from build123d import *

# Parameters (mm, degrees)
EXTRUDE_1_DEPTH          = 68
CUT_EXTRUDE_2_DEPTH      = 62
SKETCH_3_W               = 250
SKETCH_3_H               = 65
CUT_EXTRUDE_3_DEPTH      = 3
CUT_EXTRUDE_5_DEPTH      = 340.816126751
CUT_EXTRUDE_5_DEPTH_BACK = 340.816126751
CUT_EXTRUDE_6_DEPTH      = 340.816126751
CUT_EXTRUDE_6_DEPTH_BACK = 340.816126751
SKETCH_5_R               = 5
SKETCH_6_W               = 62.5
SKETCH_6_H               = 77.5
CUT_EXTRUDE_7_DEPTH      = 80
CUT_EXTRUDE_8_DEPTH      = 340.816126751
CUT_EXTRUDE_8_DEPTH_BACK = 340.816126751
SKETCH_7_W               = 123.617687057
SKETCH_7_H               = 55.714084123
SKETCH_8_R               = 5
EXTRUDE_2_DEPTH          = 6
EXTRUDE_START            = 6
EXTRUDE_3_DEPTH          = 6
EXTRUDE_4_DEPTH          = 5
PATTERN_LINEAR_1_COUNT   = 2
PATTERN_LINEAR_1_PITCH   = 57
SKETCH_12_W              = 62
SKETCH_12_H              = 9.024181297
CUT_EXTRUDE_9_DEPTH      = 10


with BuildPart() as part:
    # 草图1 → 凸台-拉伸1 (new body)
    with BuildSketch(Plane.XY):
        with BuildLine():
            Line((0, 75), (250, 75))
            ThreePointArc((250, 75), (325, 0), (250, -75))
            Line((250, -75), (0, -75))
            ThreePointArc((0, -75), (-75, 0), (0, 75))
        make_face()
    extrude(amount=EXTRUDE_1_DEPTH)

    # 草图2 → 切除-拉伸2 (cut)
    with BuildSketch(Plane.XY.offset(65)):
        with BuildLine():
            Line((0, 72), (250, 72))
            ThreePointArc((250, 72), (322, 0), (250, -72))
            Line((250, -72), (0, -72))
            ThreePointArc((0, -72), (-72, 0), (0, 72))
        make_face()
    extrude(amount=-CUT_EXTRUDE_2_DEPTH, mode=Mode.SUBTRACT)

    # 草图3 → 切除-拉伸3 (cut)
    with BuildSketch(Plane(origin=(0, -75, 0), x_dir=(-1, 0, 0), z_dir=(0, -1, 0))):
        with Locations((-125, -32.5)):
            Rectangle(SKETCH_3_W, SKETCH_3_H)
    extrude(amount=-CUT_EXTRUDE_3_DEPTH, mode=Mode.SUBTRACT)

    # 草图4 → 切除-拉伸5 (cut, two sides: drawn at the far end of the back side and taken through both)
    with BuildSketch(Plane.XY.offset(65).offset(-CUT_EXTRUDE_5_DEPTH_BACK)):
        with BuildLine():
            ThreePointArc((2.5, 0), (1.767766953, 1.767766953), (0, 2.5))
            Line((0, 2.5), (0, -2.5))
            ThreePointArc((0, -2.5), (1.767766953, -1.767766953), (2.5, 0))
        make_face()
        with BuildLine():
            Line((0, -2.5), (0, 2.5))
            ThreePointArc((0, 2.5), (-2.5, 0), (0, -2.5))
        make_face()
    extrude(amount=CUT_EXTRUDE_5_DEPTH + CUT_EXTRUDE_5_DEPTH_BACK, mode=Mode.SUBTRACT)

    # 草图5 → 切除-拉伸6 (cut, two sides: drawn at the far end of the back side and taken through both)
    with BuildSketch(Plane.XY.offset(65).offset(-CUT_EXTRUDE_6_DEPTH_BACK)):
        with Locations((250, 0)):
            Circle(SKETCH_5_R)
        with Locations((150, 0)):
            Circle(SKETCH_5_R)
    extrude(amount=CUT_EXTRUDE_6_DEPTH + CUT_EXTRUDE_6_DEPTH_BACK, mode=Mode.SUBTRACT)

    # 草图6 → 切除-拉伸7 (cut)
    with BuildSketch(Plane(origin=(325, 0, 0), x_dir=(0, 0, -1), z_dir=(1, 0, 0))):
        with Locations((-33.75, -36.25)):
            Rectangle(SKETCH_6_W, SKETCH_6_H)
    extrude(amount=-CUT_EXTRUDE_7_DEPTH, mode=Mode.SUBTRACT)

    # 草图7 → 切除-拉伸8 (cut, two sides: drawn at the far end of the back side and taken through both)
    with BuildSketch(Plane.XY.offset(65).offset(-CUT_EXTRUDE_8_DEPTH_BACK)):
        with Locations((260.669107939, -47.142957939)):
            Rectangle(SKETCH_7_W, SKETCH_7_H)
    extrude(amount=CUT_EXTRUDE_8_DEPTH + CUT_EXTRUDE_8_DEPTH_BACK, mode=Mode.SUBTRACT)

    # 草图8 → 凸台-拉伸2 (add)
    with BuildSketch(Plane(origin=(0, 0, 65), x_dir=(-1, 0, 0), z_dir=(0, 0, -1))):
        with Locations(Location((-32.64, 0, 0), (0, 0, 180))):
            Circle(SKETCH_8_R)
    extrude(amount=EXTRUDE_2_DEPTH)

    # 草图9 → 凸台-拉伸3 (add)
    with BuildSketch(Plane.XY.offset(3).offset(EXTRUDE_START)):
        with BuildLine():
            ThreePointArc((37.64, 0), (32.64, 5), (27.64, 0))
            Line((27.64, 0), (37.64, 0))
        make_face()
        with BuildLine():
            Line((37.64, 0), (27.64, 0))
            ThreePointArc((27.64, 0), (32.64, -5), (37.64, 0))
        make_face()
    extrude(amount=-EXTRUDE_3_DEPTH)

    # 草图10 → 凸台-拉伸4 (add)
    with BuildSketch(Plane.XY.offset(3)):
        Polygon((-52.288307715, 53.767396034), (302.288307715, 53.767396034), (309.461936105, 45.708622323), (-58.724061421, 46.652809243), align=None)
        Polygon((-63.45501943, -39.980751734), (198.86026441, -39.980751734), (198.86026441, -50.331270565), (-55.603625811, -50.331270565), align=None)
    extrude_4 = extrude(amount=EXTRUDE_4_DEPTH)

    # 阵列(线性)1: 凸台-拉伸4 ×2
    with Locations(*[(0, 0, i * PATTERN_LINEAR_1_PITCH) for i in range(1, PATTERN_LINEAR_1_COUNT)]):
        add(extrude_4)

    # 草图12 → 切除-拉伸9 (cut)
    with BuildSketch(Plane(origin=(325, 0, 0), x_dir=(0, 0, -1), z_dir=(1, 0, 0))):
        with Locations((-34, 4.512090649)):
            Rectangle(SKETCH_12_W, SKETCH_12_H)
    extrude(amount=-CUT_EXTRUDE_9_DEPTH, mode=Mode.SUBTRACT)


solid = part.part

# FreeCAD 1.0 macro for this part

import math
import FreeCAD as App
import Part
import Sketcher
from FreeCAD import Vector
Q = App.Units.Quantity


def add_polygon(sketch, points):
    """Adds a closed chain of lines whose ends are joined by coincident constraints."""
    first, n = sketch.GeometryCount, len(points)
    for a, b in zip(points, points[1:] + points[:1]):
        sketch.addGeometry(Part.LineSegment(App.Vector(*a, 0), App.Vector(*b, 0)), False)
    for i in range(n):
        sketch.addConstraint(Sketcher.Constraint("Coincident", first + i, 2, first + (i + 1) % n, 1))

doc = App.newDocument("Part")
body = doc.addObject("PartDesign::Body", "Body")

sketch1 = doc.addObject("Sketcher::SketchObject", "Sketch")
body.addObject(sketch1)
sketch1.AttachmentSupport = (doc.XY_Plane, [""])
sketch1.MapMode = "FlatFace"
sketch1.addGeometry(Part.LineSegment(Vector(250, 75, 0), Vector(0, 75, 0)), False)
sketch1.addGeometry(Part.ArcOfCircle(Part.Circle(Vector(0, 0, 0), Vector(0, 0, 1), 75), math.radians(90), math.radians(270)), False)
sketch1.addGeometry(Part.LineSegment(Vector(0, -75, 0), Vector(250, -75, 0)), False)
sketch1.addGeometry(Part.ArcOfCircle(Part.Circle(Vector(250, 0, 0), Vector(0, 0, 1), 75), math.radians(-90), math.radians(90)), False)
sketch1.addConstraint(Sketcher.Constraint("Tangent", 0, 2, 1, 1))
sketch1.addConstraint(Sketcher.Constraint("Tangent", 1, 2, 2, 1))
sketch1.addConstraint(Sketcher.Constraint("Tangent", 2, 2, 3, 1))
sketch1.addConstraint(Sketcher.Constraint("Tangent", 3, 2, 0, 1))
sketch1.addConstraint(Sketcher.Constraint("Horizontal", 0))
sketch1.addConstraint(Sketcher.Constraint("Horizontal", 2))
sketch1.addConstraint(Sketcher.Constraint("Coincident", 1, 3, -1, 1))
sketch1.addConstraint(Sketcher.Constraint("Radius", 1, Q("75 mm")))
sketch1.addConstraint(Sketcher.Constraint("DistanceX", 0, 2, 0, 1, Q("250 mm")))
pad1 = doc.addObject("PartDesign::Pad", "Pad")
body.addObject(pad1)
pad1.Profile = sketch1
pad1.Length = 68

sketch2 = doc.addObject("Sketcher::SketchObject", "Sketch001")
body.addObject(sketch2)
sketch2.AttachmentSupport = (doc.XY_Plane, [""])
sketch2.MapMode = "FlatFace"
sketch2.AttachmentOffset = App.Placement(Vector(0, 0, 65), App.Rotation())
sketch2.addGeometry(Part.LineSegment(Vector(250, 72, 0), Vector(0, 72, 0)), False)
sketch2.addGeometry(Part.ArcOfCircle(Part.Circle(Vector(0, 0, 0), Vector(0, 0, 1), 72), math.radians(90), math.radians(270)), False)
sketch2.addGeometry(Part.LineSegment(Vector(0, -72, 0), Vector(250, -72, 0)), False)
sketch2.addGeometry(Part.ArcOfCircle(Part.Circle(Vector(250, 0, 0), Vector(0, 0, 1), 72), math.radians(-90), math.radians(90)), False)
sketch2.addConstraint(Sketcher.Constraint("Tangent", 0, 2, 1, 1))
sketch2.addConstraint(Sketcher.Constraint("Tangent", 1, 2, 2, 1))
sketch2.addConstraint(Sketcher.Constraint("Tangent", 2, 2, 3, 1))
sketch2.addConstraint(Sketcher.Constraint("Tangent", 3, 2, 0, 1))
sketch2.addConstraint(Sketcher.Constraint("Horizontal", 0))
sketch2.addConstraint(Sketcher.Constraint("Horizontal", 2))
sketch2.addConstraint(Sketcher.Constraint("Coincident", 1, 3, -1, 1))
sketch2.addConstraint(Sketcher.Constraint("Radius", 1, Q("72 mm")))
sketch2.addConstraint(Sketcher.Constraint("DistanceX", 0, 2, 0, 1, Q("250 mm")))
pocket1 = doc.addObject("PartDesign::Pocket", "Pocket")
body.addObject(pocket1)
pocket1.Profile = sketch2
pocket1.Length = 62

sketch3 = doc.addObject("Sketcher::SketchObject", "Sketch002")
body.addObject(sketch3)
sketch3.AttachmentSupport = (doc.XZ_Plane, [""])
sketch3.MapMode = "FlatFace"
sketch3.AttachmentOffset = App.Placement(Vector(0, 0, 75), App.Rotation())
add_polygon(sketch3, [(250, 0), (250, 65), (0, 65), (0, 0)])
sketch3.addConstraint(Sketcher.Constraint("Vertical", 0))
sketch3.addConstraint(Sketcher.Constraint("Horizontal", 1))
sketch3.addConstraint(Sketcher.Constraint("Vertical", 2))
sketch3.addConstraint(Sketcher.Constraint("Horizontal", 3))
sketch3.addConstraint(Sketcher.Constraint("Coincident", 2, 2, -1, 1))
sketch3.addConstraint(Sketcher.Constraint("DistanceX", 1, 2, 1, 1, Q("250 mm")))
sketch3.addConstraint(Sketcher.Constraint("DistanceY", 0, 1, 0, 2, Q("65 mm")))
pocket2 = doc.addObject("PartDesign::Pocket", "Pocket001")
body.addObject(pocket2)
pocket2.Profile = sketch3
pocket2.Length = 3

sketch4 = doc.addObject("Sketcher::SketchObject", "Sketch003")
body.addObject(sketch4)
sketch4.AttachmentSupport = (doc.XY_Plane, [""])
sketch4.MapMode = "FlatFace"
sketch4.AttachmentOffset = App.Placement(Vector(0, 0, 65), App.Rotation())
sketch4.addGeometry(Part.ArcOfCircle(Part.Circle(Vector(0, 0, 0), Vector(0, 0, 1), 2.5), math.radians(0), math.radians(90)), False)
sketch4.addGeometry(Part.ArcOfCircle(Part.Circle(Vector(0, 0, 0), Vector(0, 0, 1), 2.5), math.radians(90), math.radians(270)), False)
sketch4.addGeometry(Part.ArcOfCircle(Part.Circle(Vector(0, 0, 0), Vector(0, 0, 1), 2.5), math.radians(-90), math.radians(0)), False)
sketch4.addConstraint(Sketcher.Constraint("Tangent", 0, 2, 1, 1))
sketch4.addConstraint(Sketcher.Constraint("Tangent", 1, 2, 2, 1))
sketch4.addConstraint(Sketcher.Constraint("Tangent", 2, 2, 0, 1))
sketch4.addConstraint(Sketcher.Constraint("Coincident", 0, 3, -1, 1))
sketch4.addConstraint(Sketcher.Constraint("PointOnObject", 0, 2, -2))
sketch4.addConstraint(Sketcher.Constraint("PointOnObject", 1, 2, -2))
sketch4.addConstraint(Sketcher.Constraint("PointOnObject", 2, 2, -1))
sketch4.addConstraint(Sketcher.Constraint("Radius", 0, Q("2.5 mm")))
pocket3 = doc.addObject("PartDesign::Pocket", "Pocket002")
body.addObject(pocket3)
pocket3.Profile = sketch4
pocket3.Type = "ThroughAll"
pocket3.Midplane = True

sketch5 = doc.addObject("Sketcher::SketchObject", "Sketch004")
body.addObject(sketch5)
sketch5.AttachmentSupport = (doc.XY_Plane, [""])
sketch5.MapMode = "FlatFace"
sketch5.AttachmentOffset = App.Placement(Vector(0, 0, 65), App.Rotation())
sketch5.addGeometry(Part.Circle(Vector(250, 0, 0), Vector(0, 0, 1), 5), False)
sketch5.addGeometry(Part.Circle(Vector(150, 0, 0), Vector(0, 0, 1), 5), False)
sketch5.addConstraint(Sketcher.Constraint("Equal", 0, 1))
sketch5.addConstraint(Sketcher.Constraint("PointOnObject", 0, 3, -1))
sketch5.addConstraint(Sketcher.Constraint("PointOnObject", 1, 3, -1))
sketch5.addConstraint(Sketcher.Constraint("Diameter", 0, Q("10 mm")))
sketch5.addConstraint(Sketcher.Constraint("DistanceX", -1, 1, 0, 3, Q("250 mm")))
sketch5.addConstraint(Sketcher.Constraint("DistanceX", -1, 1, 1, 3, Q("150 mm")))
pocket4 = doc.addObject("PartDesign::Pocket", "Pocket003")
body.addObject(pocket4)
pocket4.Profile = sketch5
pocket4.Type = "ThroughAll"
pocket4.Midplane = True

sketch6 = doc.addObject("Sketcher::SketchObject", "Sketch005")
body.addObject(sketch6)
sketch6.AttachmentSupport = (doc.YZ_Plane, [""])
sketch6.MapMode = "FlatFace"
sketch6.AttachmentOffset = App.Placement(Vector(0, 0, 325), App.Rotation())
add_polygon(sketch6, [(2, 65), (-75, 65), (-75, 2), (2, 2)])
sketch6.addConstraint(Sketcher.Constraint("Horizontal", 0))
sketch6.addConstraint(Sketcher.Constraint("Vertical", 1))
sketch6.addConstraint(Sketcher.Constraint("Horizontal", 2))
sketch6.addConstraint(Sketcher.Constraint("Vertical", 3))
sketch6.addConstraint(Sketcher.Constraint("DistanceX", 0, 2, 0, 1, Q("77.5 mm")))
sketch6.addConstraint(Sketcher.Constraint("DistanceY", 1, 2, 1, 1, Q("62.5 mm")))
sketch6.addConstraint(Sketcher.Constraint("DistanceX", 0, 2, -1, 1, Q("75 mm")))
sketch6.addConstraint(Sketcher.Constraint("DistanceY", -1, 1, 0, 2, Q("65 mm")))
pocket5 = doc.addObject("PartDesign::Pocket", "Pocket004")
body.addObject(pocket5)
pocket5.Profile = sketch6
pocket5.Length = 80

sketch7 = doc.addObject("Sketcher::SketchObject", "Sketch006")
body.addObject(sketch7)
sketch7.AttachmentSupport = (doc.XY_Plane, [""])
sketch7.MapMode = "FlatFace"
sketch7.AttachmentOffset = App.Placement(Vector(0, 0, 65), App.Rotation())
add_polygon(sketch7, [(199, -19), (199, -75), (322, -75), (322, -19)])
sketch7.addConstraint(Sketcher.Constraint("Vertical", 0))
sketch7.addConstraint(Sketcher.Constraint("Horizontal", 1))
sketch7.addConstraint(Sketcher.Constraint("Vertical", 2))
sketch7.addConstraint(Sketcher.Constraint("Horizontal", 3))
sketch7.addConstraint(Sketcher.Constraint("DistanceY", 0, 2, -1, 1, Q("75 mm")))
sketch7.addConstraint(Sketcher.Constraint("DistanceX", 1, 1, 1, 2, Q("123.617687 mm")))
sketch7.addConstraint(Sketcher.Constraint("DistanceY", 0, 2, 0, 1, Q("55.714084 mm")))
sketch7.addConstraint(Sketcher.Constraint("DistanceX", -1, 1, 1, 2, Q("322.477951 mm")))
pocket6 = doc.addObject("PartDesign::Pocket", "Pocket005")
body.addObject(pocket6)
pocket6.Profile = sketch7
pocket6.Type = "ThroughAll"
pocket6.Midplane = True

sketch8 = doc.addObject("Sketcher::SketchObject", "Sketch007")
body.addObject(sketch8)
sketch8.AttachmentSupport = (doc.XY_Plane, [""])
sketch8.MapMode = "FlatFace"
sketch8.AttachmentOffset = App.Placement(Vector(0, 0, 65), App.Rotation())
sketch8.addGeometry(Part.Circle(Vector(33, 0, 0), Vector(0, 0, 1), 5), False)
sketch8.addConstraint(Sketcher.Constraint("PointOnObject", 0, 3, -1))
sketch8.addConstraint(Sketcher.Constraint("Diameter", 0, Q("10 mm")))
sketch8.addConstraint(Sketcher.Constraint("DistanceX", -1, 1, 0, 3, Q("32.64 mm")))
pad2 = doc.addObject("PartDesign::Pad", "Pad001")
body.addObject(pad2)
pad2.Profile = sketch8
pad2.Length = 6
pad2.Reversed = True

sketch9 = doc.addObject("Sketcher::SketchObject", "Sketch008")
body.addObject(sketch9)
sketch9.AttachmentSupport = (doc.XY_Plane, [""])
sketch9.MapMode = "FlatFace"
sketch9.AttachmentOffset = App.Placement(Vector(0, 0, 9), App.Rotation())
sketch9.addGeometry(Part.Circle(Vector(33, 0, 0), Vector(0, 0, 1), 5), False)
sketch9.addConstraint(Sketcher.Constraint("PointOnObject", 0, 3, -1))
sketch9.addConstraint(Sketcher.Constraint("Diameter", 0, Q("10 mm")))
sketch9.addConstraint(Sketcher.Constraint("DistanceX", -1, 1, 0, 3, Q("32.64 mm")))
pad3 = doc.addObject("PartDesign::Pad", "Pad002")
body.addObject(pad3)
pad3.Profile = sketch9
pad3.Length = 6
pad3.Reversed = True

sketch10 = doc.addObject("Sketcher::SketchObject", "Sketch009")
body.addObject(sketch10)
sketch10.AttachmentSupport = (doc.XY_Plane, [""])
sketch10.MapMode = "FlatFace"
sketch10.AttachmentOffset = App.Placement(Vector(0, 0, 3), App.Rotation())
add_polygon(sketch10, [(302, 54), (-52, 54), (-59, 47), (309, 46)])
add_polygon(sketch10, [(199, -40), (-63, -40), (-56, -50), (199, -50)])
sketch10.addConstraint(Sketcher.Constraint("Horizontal", 0))
sketch10.addConstraint(Sketcher.Constraint("Horizontal", 4))
sketch10.addConstraint(Sketcher.Constraint("Horizontal", 6))
sketch10.addConstraint(Sketcher.Constraint("Vertical", 7))
sketch10.addConstraint(Sketcher.Constraint("DistanceX", 6, 1, 6, 2, Q("254.46389 mm")))
sketch10.addConstraint(Sketcher.Constraint("DistanceY", 7, 1, 7, 2, Q("10.350519 mm")))
sketch10.addConstraint(Sketcher.Constraint("Distance", 2, Q("368.187208 mm")))
sketch10.addConstraint(Sketcher.Constraint("DistanceX", 0, 2, 0, 1, Q("354.576615 mm")))
sketch10.addConstraint(Sketcher.Constraint("DistanceX", 4, 2, 4, 1, Q("262.315284 mm")))
sketch10.addConstraint(Sketcher.Constraint("DistanceX", 1, 2, -1, 1, Q("58.724061 mm")))
sketch10.addConstraint(Sketcher.Constraint("DistanceY", -1, 1, 1, 2, Q("46.652809 mm")))
sketch10.addConstraint(Sketcher.Constraint("DistanceX", 4, 2, -1, 1, Q("63.455019 mm")))
sketch10.addConstraint(Sketcher.Constraint("DistanceY", 4, 2, -1, 1, Q("39.980752 mm")))
sketch10.addConstraint(Sketcher.Constraint("DistanceX", 3, 2, 2, 2, Q("7.173628 mm")))
sketch10.addConstraint(Sketcher.Constraint("Distance", 1, Q("9.593554 mm")))
sketch10.addConstraint(Sketcher.Constraint("Distance", 3, Q("10.789105 mm")))
pad4 = doc.addObject("PartDesign::Pad", "Pad003")
body.addObject(pad4)
pad4.Profile = sketch10
pad4.Length = 5
doc.recompute()

linearpattern = doc.addObject("PartDesign::LinearPattern", "LinearPattern")
body.addObject(linearpattern)
linearpattern.Originals = [pad4]
linearpattern.Direction = (doc.Z_Axis, [""])
linearpattern.Mode = "offset"
linearpattern.Offset = 57
linearpattern.Occurrences = 2
body.Tip = linearpattern

sketch11 = doc.addObject("Sketcher::SketchObject", "Sketch010")
body.addObject(sketch11)
sketch11.AttachmentSupport = (doc.YZ_Plane, [""])
sketch11.MapMode = "FlatFace"
sketch11.AttachmentOffset = App.Placement(Vector(0, 0, 325), App.Rotation())
add_polygon(sketch11, [(9, 65), (0, 65), (0, 3), (9, 3)])
sketch11.addConstraint(Sketcher.Constraint("Horizontal", 0))
sketch11.addConstraint(Sketcher.Constraint("Vertical", 1))
sketch11.addConstraint(Sketcher.Constraint("Horizontal", 2))
sketch11.addConstraint(Sketcher.Constraint("Vertical", 3))
sketch11.addConstraint(Sketcher.Constraint("PointOnObject", 0, 2, -2))
sketch11.addConstraint(Sketcher.Constraint("DistanceY", 1, 2, 1, 1, Q("62 mm")))
sketch11.addConstraint(Sketcher.Constraint("DistanceY", -1, 1, 0, 2, Q("65 mm")))
sketch11.addConstraint(Sketcher.Constraint("DistanceX", 0, 2, 0, 1, Q("9.024181 mm")))
pocket7 = doc.addObject("PartDesign::Pocket", "Pocket006")
body.addObject(pocket7)
pocket7.Profile = sketch11
pocket7.Length = 10

doc.recompute()
